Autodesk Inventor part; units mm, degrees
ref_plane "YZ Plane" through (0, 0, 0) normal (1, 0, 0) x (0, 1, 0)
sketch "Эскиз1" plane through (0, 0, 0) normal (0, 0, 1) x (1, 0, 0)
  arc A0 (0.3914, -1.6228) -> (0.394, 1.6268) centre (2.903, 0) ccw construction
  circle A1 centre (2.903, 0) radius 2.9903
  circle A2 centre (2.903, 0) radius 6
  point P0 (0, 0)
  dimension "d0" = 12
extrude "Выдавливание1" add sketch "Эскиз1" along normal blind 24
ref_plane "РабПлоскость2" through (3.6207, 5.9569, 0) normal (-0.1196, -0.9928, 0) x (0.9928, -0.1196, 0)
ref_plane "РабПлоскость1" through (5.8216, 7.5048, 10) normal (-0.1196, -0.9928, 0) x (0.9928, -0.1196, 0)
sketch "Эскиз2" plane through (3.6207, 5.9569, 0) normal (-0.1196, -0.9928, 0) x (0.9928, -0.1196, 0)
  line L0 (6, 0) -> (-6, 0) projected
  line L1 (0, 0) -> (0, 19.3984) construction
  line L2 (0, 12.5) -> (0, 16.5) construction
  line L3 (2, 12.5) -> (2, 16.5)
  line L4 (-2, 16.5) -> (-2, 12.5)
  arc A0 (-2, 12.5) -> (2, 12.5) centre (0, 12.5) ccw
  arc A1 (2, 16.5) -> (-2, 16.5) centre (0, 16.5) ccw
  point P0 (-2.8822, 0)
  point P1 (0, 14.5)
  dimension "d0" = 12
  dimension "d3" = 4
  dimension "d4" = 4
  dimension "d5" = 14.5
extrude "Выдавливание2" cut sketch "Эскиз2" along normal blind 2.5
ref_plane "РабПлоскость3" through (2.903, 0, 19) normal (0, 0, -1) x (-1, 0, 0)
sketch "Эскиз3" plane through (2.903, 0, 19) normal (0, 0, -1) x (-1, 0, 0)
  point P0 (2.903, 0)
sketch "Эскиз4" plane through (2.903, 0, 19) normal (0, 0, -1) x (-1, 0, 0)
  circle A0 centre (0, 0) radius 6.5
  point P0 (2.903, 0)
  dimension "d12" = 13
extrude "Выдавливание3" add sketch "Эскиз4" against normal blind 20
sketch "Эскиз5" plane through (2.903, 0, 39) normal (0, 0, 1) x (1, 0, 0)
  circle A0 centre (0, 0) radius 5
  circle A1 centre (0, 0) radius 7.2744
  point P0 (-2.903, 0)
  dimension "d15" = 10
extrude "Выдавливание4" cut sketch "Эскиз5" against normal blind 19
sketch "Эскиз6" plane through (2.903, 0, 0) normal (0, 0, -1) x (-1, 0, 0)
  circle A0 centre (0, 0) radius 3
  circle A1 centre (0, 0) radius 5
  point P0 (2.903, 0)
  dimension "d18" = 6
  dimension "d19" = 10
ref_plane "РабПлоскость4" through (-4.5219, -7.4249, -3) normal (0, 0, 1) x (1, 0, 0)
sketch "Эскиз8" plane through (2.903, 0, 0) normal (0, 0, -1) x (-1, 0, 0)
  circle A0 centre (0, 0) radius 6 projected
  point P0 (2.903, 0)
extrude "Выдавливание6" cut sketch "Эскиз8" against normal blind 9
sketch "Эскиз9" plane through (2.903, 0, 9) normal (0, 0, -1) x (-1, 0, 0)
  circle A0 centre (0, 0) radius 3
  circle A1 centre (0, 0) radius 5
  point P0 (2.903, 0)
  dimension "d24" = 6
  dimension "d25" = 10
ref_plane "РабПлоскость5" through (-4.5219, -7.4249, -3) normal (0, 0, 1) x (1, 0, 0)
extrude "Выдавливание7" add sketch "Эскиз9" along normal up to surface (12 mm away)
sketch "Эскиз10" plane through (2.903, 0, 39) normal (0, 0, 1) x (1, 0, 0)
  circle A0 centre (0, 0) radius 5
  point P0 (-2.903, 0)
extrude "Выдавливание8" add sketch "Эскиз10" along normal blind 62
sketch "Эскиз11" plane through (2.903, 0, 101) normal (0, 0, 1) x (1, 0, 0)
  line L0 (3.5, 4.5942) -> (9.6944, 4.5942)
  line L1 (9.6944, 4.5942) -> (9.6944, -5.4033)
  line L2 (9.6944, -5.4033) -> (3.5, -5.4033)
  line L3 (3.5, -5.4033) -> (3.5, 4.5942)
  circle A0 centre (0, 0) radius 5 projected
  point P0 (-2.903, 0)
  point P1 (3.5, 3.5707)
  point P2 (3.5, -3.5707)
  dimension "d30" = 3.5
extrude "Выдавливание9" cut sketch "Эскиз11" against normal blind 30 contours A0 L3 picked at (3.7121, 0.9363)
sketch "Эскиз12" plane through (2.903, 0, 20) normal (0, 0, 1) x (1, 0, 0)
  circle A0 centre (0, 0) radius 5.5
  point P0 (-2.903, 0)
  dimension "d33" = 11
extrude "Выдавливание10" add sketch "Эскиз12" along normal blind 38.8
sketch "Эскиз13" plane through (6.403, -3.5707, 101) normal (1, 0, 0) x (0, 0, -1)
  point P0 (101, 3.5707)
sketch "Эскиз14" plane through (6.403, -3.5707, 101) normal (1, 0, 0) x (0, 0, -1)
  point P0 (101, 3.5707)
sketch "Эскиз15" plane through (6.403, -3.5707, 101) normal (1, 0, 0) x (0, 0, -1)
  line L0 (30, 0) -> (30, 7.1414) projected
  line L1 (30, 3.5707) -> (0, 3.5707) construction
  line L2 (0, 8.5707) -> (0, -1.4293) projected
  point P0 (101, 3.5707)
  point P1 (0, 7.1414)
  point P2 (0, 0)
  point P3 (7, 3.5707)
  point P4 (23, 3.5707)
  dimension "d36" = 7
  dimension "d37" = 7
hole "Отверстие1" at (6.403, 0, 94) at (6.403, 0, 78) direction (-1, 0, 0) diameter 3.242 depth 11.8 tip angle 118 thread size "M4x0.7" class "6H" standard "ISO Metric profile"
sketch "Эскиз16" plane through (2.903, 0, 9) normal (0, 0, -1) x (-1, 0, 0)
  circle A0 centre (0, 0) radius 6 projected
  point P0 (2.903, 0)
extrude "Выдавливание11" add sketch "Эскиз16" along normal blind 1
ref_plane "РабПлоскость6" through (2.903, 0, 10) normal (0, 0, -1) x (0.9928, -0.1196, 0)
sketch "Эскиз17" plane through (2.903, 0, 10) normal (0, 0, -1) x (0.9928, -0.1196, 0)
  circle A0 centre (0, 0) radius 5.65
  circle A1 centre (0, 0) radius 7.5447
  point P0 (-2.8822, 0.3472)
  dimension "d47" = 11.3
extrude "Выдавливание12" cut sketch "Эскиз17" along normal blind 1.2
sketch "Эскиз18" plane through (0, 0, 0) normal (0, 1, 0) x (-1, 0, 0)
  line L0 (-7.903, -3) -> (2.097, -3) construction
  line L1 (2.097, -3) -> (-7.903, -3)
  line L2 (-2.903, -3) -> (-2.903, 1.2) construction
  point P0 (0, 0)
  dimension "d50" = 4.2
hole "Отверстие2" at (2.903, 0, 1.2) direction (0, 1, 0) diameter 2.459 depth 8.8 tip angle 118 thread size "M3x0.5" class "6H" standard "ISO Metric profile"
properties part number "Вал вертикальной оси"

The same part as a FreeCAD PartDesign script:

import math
import FreeCAD as App
import Part
import Sketcher
from FreeCAD import Vector

doc = App.newDocument("Part")
body = doc.addObject("PartDesign::Body", "Body")

# Sketch on XY plane
sketch1 = body.newObject("Sketcher::SketchObject", "Sketch")
sketch1.AttachmentSupport = (doc.getObject("XY_Plane"), [""])
sketch1.MapMode = "FlatFace"
sketch1.addGeometry([
    Part.Circle(Vector(2.903, 0, 0), Vector(0, 0, 1), 6),
    Part.Circle(Vector(2.903, 0, 0), Vector(0, 0, 1), 2.9903),
], False)
sketch1.addConstraint([
    Sketcher.Constraint("Coincident", 1, 3, 0, 3),
    Sketcher.Constraint("PointOnObject", 0, 3, -1),
    Sketcher.Constraint("Diameter", 0, 12.0),
    Sketcher.Constraint("Diameter", 1, 5.9806),
    Sketcher.Constraint("DistanceX", -1, 1, 0, 3, 2.903),
])
pad1 = body.newObject("PartDesign::Pad", "Pad")
pad1.Profile = sketch1
pad1.Length = 24

# Sketch on an angled plane
sketch2 = body.newObject("Sketcher::SketchObject", "Sketch001")
sketch2.Placement = App.Placement(Vector(3.6207, 5.9569, 0), App.Rotation(Vector(0.992821842, -0.119602631, 0), Vector(0, 0, 0.999999999), Vector(-0.119602631, -0.992821842, 0), "ZXY"))
sketch2.addGeometry([
    Part.ArcOfCircle(Part.Circle(Vector(0, 12.5, 0), Vector(0, 0, 1), 2), math.radians(180), math.radians(360)),
    Part.LineSegment(Vector(2, 12.5, 0), Vector(2, 16.5, 0)),
    Part.ArcOfCircle(Part.Circle(Vector(0, 16.5, 0), Vector(0, 0, 1), 2), math.radians(0), math.radians(180)),
    Part.LineSegment(Vector(-2, 16.5, 0), Vector(-2, 12.5, 0)),
], False)
sketch2.addConstraint([
    Sketcher.Constraint("Tangent", 0, 2, 1, 1),
    Sketcher.Constraint("Tangent", 1, 2, 2, 1),
    Sketcher.Constraint("Tangent", 2, 2, 3, 1),
    Sketcher.Constraint("Tangent", 3, 2, 0, 1),
    Sketcher.Constraint("Vertical", 1),
    Sketcher.Constraint("Vertical", 3),
    Sketcher.Constraint("PointOnObject", 0, 3, -2),
    Sketcher.Constraint("Radius", 0, 2.0),
    Sketcher.Constraint("DistanceY", 1, 1, 1, 2, 4.0),
    Sketcher.Constraint("DistanceY", -1, 1, 0, 3, 12.5),
])
pocket1 = body.newObject("PartDesign::Pocket", "Pocket")
pocket1.Profile = sketch2
pocket1.Length = 2.5
pocket1.Reversed = True

# Sketch on XY plane
sketch3 = body.newObject("Sketcher::SketchObject", "Sketch002")
sketch3.AttachmentSupport = (doc.getObject("XY_Plane"), [""])
sketch3.MapMode = "FlatFace"
sketch3.AttachmentOffset = App.Placement(Vector(0, 0, 19), App.Rotation())
sketch3.addGeometry(Part.Circle(Vector(2.903, 0, 0), Vector(0, 0, 1), 6.5), False)
sketch3.addConstraint([
    Sketcher.Constraint("PointOnObject", 0, 3, -1),
    Sketcher.Constraint("Diameter", 0, 13.0),
    Sketcher.Constraint("DistanceX", -1, 1, 0, 3, 2.903),
])
pad2 = body.newObject("PartDesign::Pad", "Pad001")
pad2.Profile = sketch3
pad2.Length = 20

# Sketch on XY plane
sketch4 = body.newObject("Sketcher::SketchObject", "Sketch003")
sketch4.AttachmentSupport = (doc.getObject("XY_Plane"), [""])
sketch4.MapMode = "FlatFace"
sketch4.AttachmentOffset = App.Placement(Vector(0, 0, 39), App.Rotation())
sketch4.addGeometry([
    Part.Circle(Vector(2.903, 0, 0), Vector(0, 0, 1), 7.2744),
    Part.Circle(Vector(2.903, 0, 0), Vector(0, 0, 1), 5),
], False)
sketch4.addConstraint([
    Sketcher.Constraint("Coincident", 1, 3, 0, 3),
    Sketcher.Constraint("PointOnObject", 0, 3, -1),
    Sketcher.Constraint("Diameter", 1, 10.0),
    Sketcher.Constraint("Diameter", 0, 14.5488),
    Sketcher.Constraint("DistanceX", -1, 1, 0, 3, 2.903),
])
pocket2 = body.newObject("PartDesign::Pocket", "Pocket001")
pocket2.Profile = sketch4
pocket2.Length = 19

# Sketch on XY plane
sketch5 = body.newObject("Sketcher::SketchObject", "Sketch004")
sketch5.AttachmentSupport = (doc.getObject("XY_Plane"), [""])
sketch5.MapMode = "FlatFace"
sketch5.addGeometry(Part.Circle(Vector(2.903, 0, 0), Vector(0, 0, 1), 6), False)
sketch5.addConstraint([
    Sketcher.Constraint("PointOnObject", 0, 3, -1),
    Sketcher.Constraint("Diameter", 0, 12.0),
    Sketcher.Constraint("DistanceX", -1, 1, 0, 3, 2.903),
])
pocket3 = body.newObject("PartDesign::Pocket", "Pocket002")
pocket3.Profile = sketch5
pocket3.Length = 9
pocket3.Reversed = True

# Sketch on XY plane
sketch6 = body.newObject("Sketcher::SketchObject", "Sketch005")
sketch6.AttachmentSupport = (doc.getObject("XY_Plane"), [""])
sketch6.MapMode = "FlatFace"
sketch6.AttachmentOffset = App.Placement(Vector(0, 0, 9), App.Rotation())
sketch6.addGeometry([
    Part.Circle(Vector(2.903, 0, 0), Vector(0, 0, 1), 5),
    Part.Circle(Vector(2.903, 0, 0), Vector(0, 0, 1), 3),
], False)
sketch6.addConstraint([
    Sketcher.Constraint("Coincident", 1, 3, 0, 3),
    Sketcher.Constraint("PointOnObject", 0, 3, -1),
    Sketcher.Constraint("Diameter", 0, 10.0),
    Sketcher.Constraint("Diameter", 1, 6.0),
    Sketcher.Constraint("DistanceX", -1, 1, 0, 3, 2.903),
])
pad3 = body.newObject("PartDesign::Pad", "Pad002")
pad3.Profile = sketch6
pad3.Length = 12
pad3.Reversed = True

# Sketch on XY plane
sketch7 = body.newObject("Sketcher::SketchObject", "Sketch006")
sketch7.AttachmentSupport = (doc.getObject("XY_Plane"), [""])
sketch7.MapMode = "FlatFace"
sketch7.AttachmentOffset = App.Placement(Vector(0, 0, 39), App.Rotation())
sketch7.addGeometry(Part.Circle(Vector(2.903, 0, 0), Vector(0, 0, 1), 5), False)
sketch7.addConstraint([
    Sketcher.Constraint("PointOnObject", 0, 3, -1),
    Sketcher.Constraint("Diameter", 0, 10.0),
    Sketcher.Constraint("DistanceX", -1, 1, 0, 3, 2.903),
])
pad4 = body.newObject("PartDesign::Pad", "Pad003")
pad4.Profile = sketch7
pad4.Length = 62

# Sketch on XY plane
sketch8 = body.newObject("Sketcher::SketchObject", "Sketch007")
sketch8.AttachmentSupport = (doc.getObject("XY_Plane"), [""])
sketch8.MapMode = "FlatFace"
sketch8.AttachmentOffset = App.Placement(Vector(0, 0, 101), App.Rotation())
sketch8.addGeometry([
    Part.ArcOfCircle(Part.Circle(Vector(2.903, 0, 0), Vector(0, 0, 1), 5), math.radians(-45.572996), math.radians(45.572996)),
    Part.LineSegment(Vector(6.403, 3.570714, 0), Vector(6.403, -3.570714, 0)),
], False)
sketch8.addConstraint([
    Sketcher.Constraint("Coincident", 0, 1, 1, 2),
    Sketcher.Constraint("Coincident", 1, 1, 0, 2),
    Sketcher.Constraint("Vertical", 1),
    Sketcher.Constraint("PointOnObject", 0, 3, -1),
    Sketcher.Constraint("Radius", 0, 5.0),
    Sketcher.Constraint("DistanceX", 0, 3, 0, 1, 3.5),
    Sketcher.Constraint("DistanceX", -1, 1, 0, 3, 2.903),
])
pocket4 = body.newObject("PartDesign::Pocket", "Pocket003")
pocket4.Profile = sketch8
pocket4.Length = 30

# Sketch on XY plane
sketch9 = body.newObject("Sketcher::SketchObject", "Sketch008")
sketch9.AttachmentSupport = (doc.getObject("XY_Plane"), [""])
sketch9.MapMode = "FlatFace"
sketch9.AttachmentOffset = App.Placement(Vector(0, 0, 20), App.Rotation())
sketch9.addGeometry(Part.Circle(Vector(2.903, 0, 0), Vector(0, 0, 1), 5.5), False)
sketch9.addConstraint([
    Sketcher.Constraint("PointOnObject", 0, 3, -1),
    Sketcher.Constraint("Diameter", 0, 11.0),
    Sketcher.Constraint("DistanceX", -1, 1, 0, 3, 2.903),
])
pad5 = body.newObject("PartDesign::Pad", "Pad004")
pad5.Profile = sketch9
pad5.Length = 38.8

# Sketch on YZ plane
sketch10 = body.newObject("Sketcher::SketchObject", "Sketch009")
sketch10.AttachmentSupport = (doc.getObject("YZ_Plane"), [""])
sketch10.MapMode = "FlatFace"
sketch10.AttachmentOffset = App.Placement(Vector(0, 0, 6.403), App.Rotation())
sketch10.addGeometry([
    Part.Circle(Vector(0, 94, 0), Vector(0, 0, 1), 1.621),
    Part.Circle(Vector(0, 78, 0), Vector(0, 0, 1), 1.621),
], False)
sketch10.addConstraint([
    Sketcher.Constraint("Equal", 0, 1),
    Sketcher.Constraint("PointOnObject", 0, 3, -2),
    Sketcher.Constraint("PointOnObject", 1, 3, -2),
    Sketcher.Constraint("Diameter", 0, 3.242),
    Sketcher.Constraint("DistanceY", -1, 1, 0, 3, 94.0),
    Sketcher.Constraint("DistanceY", -1, 1, 1, 3, 78.0),
])
doc.recompute()
hole = body.newObject("PartDesign::Hole", "Hole")
hole.Profile = sketch10
hole.ThreadType = "None"
hole.Diameter = 3.242
hole.DepthType = "Dimension"
hole.Depth = 11.8
hole.DrillPoint = "Angled"
hole.DrillPointAngle = 118

# Sketch on XY plane
sketch11 = body.newObject("Sketcher::SketchObject", "Sketch010")
sketch11.AttachmentSupport = (doc.getObject("XY_Plane"), [""])
sketch11.MapMode = "FlatFace"
sketch11.AttachmentOffset = App.Placement(Vector(0, 0, 9), App.Rotation())
sketch11.addGeometry(Part.Circle(Vector(2.903, 0, 0), Vector(0, 0, 1), 6), False)
sketch11.addConstraint([
    Sketcher.Constraint("PointOnObject", 0, 3, -1),
    Sketcher.Constraint("Diameter", 0, 12.0),
    Sketcher.Constraint("DistanceX", -1, 1, 0, 3, 2.903),
])
pad6 = body.newObject("PartDesign::Pad", "Pad005")
pad6.Profile = sketch11
pad6.Length = 1
pad6.Reversed = True

# Sketch on XY plane
sketch12 = body.newObject("Sketcher::SketchObject", "Sketch011")
sketch12.AttachmentSupport = (doc.getObject("XY_Plane"), [""])
sketch12.MapMode = "FlatFace"
sketch12.AttachmentOffset = App.Placement(Vector(0, 0, 10), App.Rotation())
sketch12.addGeometry([
    Part.Circle(Vector(2.903, 0, 0), Vector(0, 0, 1), 7.5447),
    Part.Circle(Vector(2.903, 0, 0), Vector(0, 0, 1), 5.65),
], False)
sketch12.addConstraint([
    Sketcher.Constraint("Coincident", 1, 3, 0, 3),
    Sketcher.Constraint("PointOnObject", 0, 3, -1),
    Sketcher.Constraint("Diameter", 1, 11.3),
    Sketcher.Constraint("Diameter", 0, 15.0894),
    Sketcher.Constraint("DistanceX", -1, 1, 0, 3, 2.903),
])
pocket5 = body.newObject("PartDesign::Pocket", "Pocket004")
pocket5.Profile = sketch12
pocket5.Length = 1.2

# Sketch on XZ plane
sketch13 = body.newObject("Sketcher::SketchObject", "Sketch012")
sketch13.AttachmentSupport = (doc.getObject("XZ_Plane"), [""])
sketch13.MapMode = "FlatFace"
sketch13.addGeometry(Part.Circle(Vector(2.903, 1.2, 0), Vector(0, 0, 1), 1.2295), False)
sketch13.addConstraint([
    Sketcher.Constraint("Diameter", 0, 2.459),
    Sketcher.Constraint("DistanceY", -1, 1, 0, 3, 1.2),
    Sketcher.Constraint("DistanceX", -1, 1, 0, 3, 2.903),
])
doc.recompute()
hole2 = body.newObject("PartDesign::Hole", "Hole001")
hole2.Profile = sketch13
hole2.ThreadType = "None"
hole2.Diameter = 2.459
hole2.DepthType = "Dimension"
hole2.Depth = 8.8
hole2.DrillPoint = "Angled"
hole2.DrillPointAngle = 118

doc.recompute()
